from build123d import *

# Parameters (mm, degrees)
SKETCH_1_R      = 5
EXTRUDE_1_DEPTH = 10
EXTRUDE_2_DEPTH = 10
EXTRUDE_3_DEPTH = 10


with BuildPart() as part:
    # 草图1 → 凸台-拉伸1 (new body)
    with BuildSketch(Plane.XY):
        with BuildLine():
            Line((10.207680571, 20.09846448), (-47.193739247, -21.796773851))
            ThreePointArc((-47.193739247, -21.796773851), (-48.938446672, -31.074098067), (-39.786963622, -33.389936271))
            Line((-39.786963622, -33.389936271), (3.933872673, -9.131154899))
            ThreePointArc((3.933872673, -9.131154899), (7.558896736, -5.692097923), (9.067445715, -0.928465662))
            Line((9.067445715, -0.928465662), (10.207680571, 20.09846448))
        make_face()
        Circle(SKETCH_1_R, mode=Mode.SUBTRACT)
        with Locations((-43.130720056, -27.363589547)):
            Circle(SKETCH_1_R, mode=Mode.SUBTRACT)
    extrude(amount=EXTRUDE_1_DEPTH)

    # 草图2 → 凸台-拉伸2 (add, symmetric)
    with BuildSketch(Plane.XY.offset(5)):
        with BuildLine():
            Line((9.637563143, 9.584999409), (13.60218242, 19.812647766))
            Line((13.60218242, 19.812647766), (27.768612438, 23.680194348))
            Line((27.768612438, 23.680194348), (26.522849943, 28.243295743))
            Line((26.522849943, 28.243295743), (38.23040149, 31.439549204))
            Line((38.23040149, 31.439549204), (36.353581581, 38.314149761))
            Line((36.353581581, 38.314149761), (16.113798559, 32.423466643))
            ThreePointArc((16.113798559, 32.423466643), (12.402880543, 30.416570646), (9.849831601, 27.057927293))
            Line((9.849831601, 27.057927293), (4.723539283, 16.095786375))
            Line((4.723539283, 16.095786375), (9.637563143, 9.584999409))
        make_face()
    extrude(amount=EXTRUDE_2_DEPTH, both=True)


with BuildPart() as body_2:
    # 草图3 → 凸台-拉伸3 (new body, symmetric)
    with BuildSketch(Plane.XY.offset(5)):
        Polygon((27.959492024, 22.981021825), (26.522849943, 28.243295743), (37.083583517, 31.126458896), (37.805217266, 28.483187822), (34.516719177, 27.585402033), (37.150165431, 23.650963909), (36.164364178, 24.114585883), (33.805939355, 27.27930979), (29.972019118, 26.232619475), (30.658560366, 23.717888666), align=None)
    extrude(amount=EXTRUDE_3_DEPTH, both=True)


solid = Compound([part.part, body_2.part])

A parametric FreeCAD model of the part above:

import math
import FreeCAD as App
import Part
import Sketcher
from FreeCAD import Vector


def add_polygon(sketch, points):
    """Adds a closed chain of lines whose ends are joined by coincident constraints."""
    first, n = sketch.GeometryCount, len(points)
    for a, b in zip(points, points[1:] + points[:1]):
        sketch.addGeometry(Part.LineSegment(App.Vector(*a, 0), App.Vector(*b, 0)), False)
    for i in range(n):
        sketch.addConstraint(Sketcher.Constraint("Coincident", first + i, 2, first + (i + 1) % n, 1))

doc = App.newDocument("Part")
body = doc.addObject("PartDesign::Body", "Body")

sketch1 = body.newObject("Sketcher::SketchObject", "Sketch")
sketch1.AttachmentSupport = (doc.getObject("XY_Plane"), [""])
sketch1.MapMode = "FlatFace"
sketch1.addGeometry([
    Part.LineSegment(Vector(10, 20, 0), Vector(-47, -22, 0)),
    Part.ArcOfCircle(Part.Circle(Vector(-43, -27, 0), Vector(0, 0, 1), 7), math.radians(126), math.radians(299)),
    Part.LineSegment(Vector(-40, -33, 0), Vector(4, -9, 0)),
    Part.ArcOfCircle(Part.Circle(Vector(-1, 0, 0), Vector(0, 0, 1), 10), math.radians(-61), math.radians(-3)),
    Part.LineSegment(Vector(9, -1, 0), Vector(10, 20, 0)),
    Part.Circle(Vector(-43, -27, 0), Vector(0, 0, 1), 5),
    Part.Circle(Vector(0, 0, 0), Vector(0, 0, 1), 5),
], False)
sketch1.addConstraint([
    Sketcher.Constraint("Tangent", 0, 2, 1, 1),
    Sketcher.Constraint("Tangent", 1, 2, 2, 1),
    Sketcher.Constraint("Tangent", 2, 2, 3, 1),
    Sketcher.Constraint("Tangent", 3, 2, 4, 1),
    Sketcher.Constraint("Coincident", 4, 2, 0, 1),
    Sketcher.Constraint("Coincident", 6, 3, -1, 1),
    Sketcher.Constraint("Coincident", 5, 3, 1, 3),
    Sketcher.Constraint("Equal", 5, 6),
    Sketcher.Constraint("Diameter", 5, 10.0),
    Sketcher.Constraint("Radius", 3, 10.0),
    Sketcher.Constraint("Distance", 2, 50.0),
    Sketcher.Constraint("Radius", 1, 6.891847),
    Sketcher.Constraint("DistanceY", 1, 3, 3, 3, 26.976602),
    Sketcher.Constraint("DistanceX", 1, 3, -1, 1, 43.13072),
    Sketcher.Constraint("DistanceY", 1, 3, -1, 1, 27.36359),
    Sketcher.Constraint("DistanceX", 0, 2, -1, 1, 47.193739),
    Sketcher.Constraint("DistanceX", -1, 1, 4, 2, 10.207681),
])
pad1 = body.newObject("PartDesign::Pad", "Pad")
pad1.Profile = sketch1
pad1.Length = 10

sketch2 = body.newObject("Sketcher::SketchObject", "Sketch001")
sketch2.AttachmentSupport = (doc.getObject("XY_Plane"), [""])
sketch2.MapMode = "FlatFace"
sketch2.AttachmentOffset = App.Placement(Vector(0, 0, 5), App.Rotation())
sketch2.addGeometry([
    Part.LineSegment(Vector(9.6, 9.6, 0), Vector(13.6, 19.8, 0)),
    Part.LineSegment(Vector(13.6, 19.8, 0), Vector(27.8, 23.7, 0)),
    Part.LineSegment(Vector(27.8, 23.7, 0), Vector(26.5, 28.2, 0)),
    Part.LineSegment(Vector(26.5, 28.2, 0), Vector(38.2, 31.4, 0)),
    Part.LineSegment(Vector(38.2, 31.4, 0), Vector(36.4, 38.3, 0)),
    Part.LineSegment(Vector(36.4, 38.3, 0), Vector(16.1, 32.4, 0)),
    Part.ArcOfCircle(Part.Circle(Vector(18.9, 22.8, 0), Vector(0, 0, 1), 10), math.radians(106), math.radians(155)),
    Part.LineSegment(Vector(9.8, 27.1, 0), Vector(4.7, 16.1, 0)),
    Part.LineSegment(Vector(4.7, 16.1, 0), Vector(9.6, 9.6, 0)),
], False)
sketch2.addConstraint([
    Sketcher.Constraint("Coincident", 0, 2, 1, 1),
    Sketcher.Constraint("Coincident", 1, 2, 2, 1),
    Sketcher.Constraint("Coincident", 2, 2, 3, 1),
    Sketcher.Constraint("Coincident", 3, 2, 4, 1),
    Sketcher.Constraint("Coincident", 4, 2, 5, 1),
    Sketcher.Constraint("Tangent", 5, 2, 6, 1),
    Sketcher.Constraint("Tangent", 6, 2, 7, 1),
    Sketcher.Constraint("Coincident", 7, 2, 8, 1),
    Sketcher.Constraint("Coincident", 8, 2, 0, 1),
    Sketcher.Constraint("Perpendicular", 1, 2),
    Sketcher.Constraint("Perpendicular", 2, 3),
    Sketcher.Constraint("Perpendicular", 3, 4),
    Sketcher.Constraint("Radius", 6, 10.0),
    Sketcher.Constraint("DistanceY", -1, 1, 8, 2, 9.584999),
    Sketcher.Constraint("DistanceX", -1, 1, 3, 2, 38.230401),
    Sketcher.Constraint("DistanceX", -1, 1, 5, 2, 16.113799),
    Sketcher.Constraint("DistanceY", 1, 2, 2, 2, 4.563101),
    Sketcher.Constraint("DistanceY", 0, 2, 3, 2, 11.626901),
    Sketcher.Constraint("DistanceY", 3, 2, 4, 2, 6.874601),
    Sketcher.Constraint("DistanceX", 0, 2, 4, 2, 22.751399),
    Sketcher.Constraint("Distance", 1, 14.684878),
    Sketcher.Constraint("Distance", 8, 8.157081),
    Sketcher.Constraint("DistanceY", -1, 1, 3, 2, 31.439549),
    Sketcher.Constraint("DistanceX", -1, 1, 6, 2, 9.849832),
    Sketcher.Constraint("DistanceX", -1, 1, 7, 2, 4.723539),
    Sketcher.Constraint("DistanceY", 6, 3, 1, 2, 0.858331),
])
pad2 = body.newObject("PartDesign::Pad", "Pad001")
pad2.Profile = sketch2
pad2.Length = 20
pad2.Midplane = True
body2 = doc.addObject("PartDesign::Body", "Body001")

sketch3 = body2.newObject("Sketcher::SketchObject", "Sketch002")
sketch3.AttachmentSupport = (doc.getObject("XY_Plane001"), [""])
sketch3.MapMode = "FlatFace"
sketch3.AttachmentOffset = App.Placement(Vector(0, 0, 5), App.Rotation())
add_polygon(sketch3, [(26.52285, 28.243296), (27.959492, 22.981022), (30.65856, 23.717889), (29.972019, 26.232619), (33.805939, 27.27931), (36.164364, 24.114586), (37.150165, 23.650964), (34.516719, 27.585402), (37.805217, 28.483188), (37.083584, 31.126459)])
sketch3.addConstraint([
    Sketcher.Constraint("DistanceX", 4, 2, 5, 2, 0.985801),
    Sketcher.Constraint("DistanceX", 2, 2, 6, 2, 4.5447),
    Sketcher.Constraint("DistanceX", 6, 2, 7, 2, 3.288498),
    Sketcher.Constraint("DistanceY", 4, 2, 7, 2, 4.368602),
    Sketcher.Constraint("Distance", 3, 3.97423),
    Sketcher.Constraint("Distance", 5, 1.08938),
    Sketcher.Constraint("Distance", 6, 4.734432),
    Sketcher.Constraint("DistanceY", -1, 1, 0, 2, 22.981022),
    Sketcher.Constraint("DistanceX", -1, 1, 1, 2, 30.65856),
    Sketcher.Constraint("DistanceY", -1, 1, 1, 2, 23.717889),
    Sketcher.Constraint("DistanceX", -1, 1, 2, 2, 29.972019),
    Sketcher.Constraint("DistanceY", -1, 1, 2, 2, 26.232619),
    Sketcher.Constraint("DistanceX", -1, 1, 3, 2, 33.805939),
    Sketcher.Constraint("DistanceY", -1, 1, 8, 2, 31.126459),
    Sketcher.Constraint("DistanceX", -1, 1, 9, 2, 26.52285),
    Sketcher.Constraint("DistanceX", 0, 2, 1, 2, 2.699068),
    Sketcher.Constraint("DistanceY", 5, 2, 6, 2, 3.934438),
    Sketcher.Constraint("DistanceY", 3, 2, 7, 2, 1.203878),
    Sketcher.Constraint("DistanceX", 4, 2, 8, 2, 0.919219),
    Sketcher.Constraint("Distance", 0, 5.454857),
])
pad3 = body2.newObject("PartDesign::Pad", "Pad002")
pad3.Profile = sketch3
pad3.Length = 20
pad3.Midplane = True

doc.recompute()
